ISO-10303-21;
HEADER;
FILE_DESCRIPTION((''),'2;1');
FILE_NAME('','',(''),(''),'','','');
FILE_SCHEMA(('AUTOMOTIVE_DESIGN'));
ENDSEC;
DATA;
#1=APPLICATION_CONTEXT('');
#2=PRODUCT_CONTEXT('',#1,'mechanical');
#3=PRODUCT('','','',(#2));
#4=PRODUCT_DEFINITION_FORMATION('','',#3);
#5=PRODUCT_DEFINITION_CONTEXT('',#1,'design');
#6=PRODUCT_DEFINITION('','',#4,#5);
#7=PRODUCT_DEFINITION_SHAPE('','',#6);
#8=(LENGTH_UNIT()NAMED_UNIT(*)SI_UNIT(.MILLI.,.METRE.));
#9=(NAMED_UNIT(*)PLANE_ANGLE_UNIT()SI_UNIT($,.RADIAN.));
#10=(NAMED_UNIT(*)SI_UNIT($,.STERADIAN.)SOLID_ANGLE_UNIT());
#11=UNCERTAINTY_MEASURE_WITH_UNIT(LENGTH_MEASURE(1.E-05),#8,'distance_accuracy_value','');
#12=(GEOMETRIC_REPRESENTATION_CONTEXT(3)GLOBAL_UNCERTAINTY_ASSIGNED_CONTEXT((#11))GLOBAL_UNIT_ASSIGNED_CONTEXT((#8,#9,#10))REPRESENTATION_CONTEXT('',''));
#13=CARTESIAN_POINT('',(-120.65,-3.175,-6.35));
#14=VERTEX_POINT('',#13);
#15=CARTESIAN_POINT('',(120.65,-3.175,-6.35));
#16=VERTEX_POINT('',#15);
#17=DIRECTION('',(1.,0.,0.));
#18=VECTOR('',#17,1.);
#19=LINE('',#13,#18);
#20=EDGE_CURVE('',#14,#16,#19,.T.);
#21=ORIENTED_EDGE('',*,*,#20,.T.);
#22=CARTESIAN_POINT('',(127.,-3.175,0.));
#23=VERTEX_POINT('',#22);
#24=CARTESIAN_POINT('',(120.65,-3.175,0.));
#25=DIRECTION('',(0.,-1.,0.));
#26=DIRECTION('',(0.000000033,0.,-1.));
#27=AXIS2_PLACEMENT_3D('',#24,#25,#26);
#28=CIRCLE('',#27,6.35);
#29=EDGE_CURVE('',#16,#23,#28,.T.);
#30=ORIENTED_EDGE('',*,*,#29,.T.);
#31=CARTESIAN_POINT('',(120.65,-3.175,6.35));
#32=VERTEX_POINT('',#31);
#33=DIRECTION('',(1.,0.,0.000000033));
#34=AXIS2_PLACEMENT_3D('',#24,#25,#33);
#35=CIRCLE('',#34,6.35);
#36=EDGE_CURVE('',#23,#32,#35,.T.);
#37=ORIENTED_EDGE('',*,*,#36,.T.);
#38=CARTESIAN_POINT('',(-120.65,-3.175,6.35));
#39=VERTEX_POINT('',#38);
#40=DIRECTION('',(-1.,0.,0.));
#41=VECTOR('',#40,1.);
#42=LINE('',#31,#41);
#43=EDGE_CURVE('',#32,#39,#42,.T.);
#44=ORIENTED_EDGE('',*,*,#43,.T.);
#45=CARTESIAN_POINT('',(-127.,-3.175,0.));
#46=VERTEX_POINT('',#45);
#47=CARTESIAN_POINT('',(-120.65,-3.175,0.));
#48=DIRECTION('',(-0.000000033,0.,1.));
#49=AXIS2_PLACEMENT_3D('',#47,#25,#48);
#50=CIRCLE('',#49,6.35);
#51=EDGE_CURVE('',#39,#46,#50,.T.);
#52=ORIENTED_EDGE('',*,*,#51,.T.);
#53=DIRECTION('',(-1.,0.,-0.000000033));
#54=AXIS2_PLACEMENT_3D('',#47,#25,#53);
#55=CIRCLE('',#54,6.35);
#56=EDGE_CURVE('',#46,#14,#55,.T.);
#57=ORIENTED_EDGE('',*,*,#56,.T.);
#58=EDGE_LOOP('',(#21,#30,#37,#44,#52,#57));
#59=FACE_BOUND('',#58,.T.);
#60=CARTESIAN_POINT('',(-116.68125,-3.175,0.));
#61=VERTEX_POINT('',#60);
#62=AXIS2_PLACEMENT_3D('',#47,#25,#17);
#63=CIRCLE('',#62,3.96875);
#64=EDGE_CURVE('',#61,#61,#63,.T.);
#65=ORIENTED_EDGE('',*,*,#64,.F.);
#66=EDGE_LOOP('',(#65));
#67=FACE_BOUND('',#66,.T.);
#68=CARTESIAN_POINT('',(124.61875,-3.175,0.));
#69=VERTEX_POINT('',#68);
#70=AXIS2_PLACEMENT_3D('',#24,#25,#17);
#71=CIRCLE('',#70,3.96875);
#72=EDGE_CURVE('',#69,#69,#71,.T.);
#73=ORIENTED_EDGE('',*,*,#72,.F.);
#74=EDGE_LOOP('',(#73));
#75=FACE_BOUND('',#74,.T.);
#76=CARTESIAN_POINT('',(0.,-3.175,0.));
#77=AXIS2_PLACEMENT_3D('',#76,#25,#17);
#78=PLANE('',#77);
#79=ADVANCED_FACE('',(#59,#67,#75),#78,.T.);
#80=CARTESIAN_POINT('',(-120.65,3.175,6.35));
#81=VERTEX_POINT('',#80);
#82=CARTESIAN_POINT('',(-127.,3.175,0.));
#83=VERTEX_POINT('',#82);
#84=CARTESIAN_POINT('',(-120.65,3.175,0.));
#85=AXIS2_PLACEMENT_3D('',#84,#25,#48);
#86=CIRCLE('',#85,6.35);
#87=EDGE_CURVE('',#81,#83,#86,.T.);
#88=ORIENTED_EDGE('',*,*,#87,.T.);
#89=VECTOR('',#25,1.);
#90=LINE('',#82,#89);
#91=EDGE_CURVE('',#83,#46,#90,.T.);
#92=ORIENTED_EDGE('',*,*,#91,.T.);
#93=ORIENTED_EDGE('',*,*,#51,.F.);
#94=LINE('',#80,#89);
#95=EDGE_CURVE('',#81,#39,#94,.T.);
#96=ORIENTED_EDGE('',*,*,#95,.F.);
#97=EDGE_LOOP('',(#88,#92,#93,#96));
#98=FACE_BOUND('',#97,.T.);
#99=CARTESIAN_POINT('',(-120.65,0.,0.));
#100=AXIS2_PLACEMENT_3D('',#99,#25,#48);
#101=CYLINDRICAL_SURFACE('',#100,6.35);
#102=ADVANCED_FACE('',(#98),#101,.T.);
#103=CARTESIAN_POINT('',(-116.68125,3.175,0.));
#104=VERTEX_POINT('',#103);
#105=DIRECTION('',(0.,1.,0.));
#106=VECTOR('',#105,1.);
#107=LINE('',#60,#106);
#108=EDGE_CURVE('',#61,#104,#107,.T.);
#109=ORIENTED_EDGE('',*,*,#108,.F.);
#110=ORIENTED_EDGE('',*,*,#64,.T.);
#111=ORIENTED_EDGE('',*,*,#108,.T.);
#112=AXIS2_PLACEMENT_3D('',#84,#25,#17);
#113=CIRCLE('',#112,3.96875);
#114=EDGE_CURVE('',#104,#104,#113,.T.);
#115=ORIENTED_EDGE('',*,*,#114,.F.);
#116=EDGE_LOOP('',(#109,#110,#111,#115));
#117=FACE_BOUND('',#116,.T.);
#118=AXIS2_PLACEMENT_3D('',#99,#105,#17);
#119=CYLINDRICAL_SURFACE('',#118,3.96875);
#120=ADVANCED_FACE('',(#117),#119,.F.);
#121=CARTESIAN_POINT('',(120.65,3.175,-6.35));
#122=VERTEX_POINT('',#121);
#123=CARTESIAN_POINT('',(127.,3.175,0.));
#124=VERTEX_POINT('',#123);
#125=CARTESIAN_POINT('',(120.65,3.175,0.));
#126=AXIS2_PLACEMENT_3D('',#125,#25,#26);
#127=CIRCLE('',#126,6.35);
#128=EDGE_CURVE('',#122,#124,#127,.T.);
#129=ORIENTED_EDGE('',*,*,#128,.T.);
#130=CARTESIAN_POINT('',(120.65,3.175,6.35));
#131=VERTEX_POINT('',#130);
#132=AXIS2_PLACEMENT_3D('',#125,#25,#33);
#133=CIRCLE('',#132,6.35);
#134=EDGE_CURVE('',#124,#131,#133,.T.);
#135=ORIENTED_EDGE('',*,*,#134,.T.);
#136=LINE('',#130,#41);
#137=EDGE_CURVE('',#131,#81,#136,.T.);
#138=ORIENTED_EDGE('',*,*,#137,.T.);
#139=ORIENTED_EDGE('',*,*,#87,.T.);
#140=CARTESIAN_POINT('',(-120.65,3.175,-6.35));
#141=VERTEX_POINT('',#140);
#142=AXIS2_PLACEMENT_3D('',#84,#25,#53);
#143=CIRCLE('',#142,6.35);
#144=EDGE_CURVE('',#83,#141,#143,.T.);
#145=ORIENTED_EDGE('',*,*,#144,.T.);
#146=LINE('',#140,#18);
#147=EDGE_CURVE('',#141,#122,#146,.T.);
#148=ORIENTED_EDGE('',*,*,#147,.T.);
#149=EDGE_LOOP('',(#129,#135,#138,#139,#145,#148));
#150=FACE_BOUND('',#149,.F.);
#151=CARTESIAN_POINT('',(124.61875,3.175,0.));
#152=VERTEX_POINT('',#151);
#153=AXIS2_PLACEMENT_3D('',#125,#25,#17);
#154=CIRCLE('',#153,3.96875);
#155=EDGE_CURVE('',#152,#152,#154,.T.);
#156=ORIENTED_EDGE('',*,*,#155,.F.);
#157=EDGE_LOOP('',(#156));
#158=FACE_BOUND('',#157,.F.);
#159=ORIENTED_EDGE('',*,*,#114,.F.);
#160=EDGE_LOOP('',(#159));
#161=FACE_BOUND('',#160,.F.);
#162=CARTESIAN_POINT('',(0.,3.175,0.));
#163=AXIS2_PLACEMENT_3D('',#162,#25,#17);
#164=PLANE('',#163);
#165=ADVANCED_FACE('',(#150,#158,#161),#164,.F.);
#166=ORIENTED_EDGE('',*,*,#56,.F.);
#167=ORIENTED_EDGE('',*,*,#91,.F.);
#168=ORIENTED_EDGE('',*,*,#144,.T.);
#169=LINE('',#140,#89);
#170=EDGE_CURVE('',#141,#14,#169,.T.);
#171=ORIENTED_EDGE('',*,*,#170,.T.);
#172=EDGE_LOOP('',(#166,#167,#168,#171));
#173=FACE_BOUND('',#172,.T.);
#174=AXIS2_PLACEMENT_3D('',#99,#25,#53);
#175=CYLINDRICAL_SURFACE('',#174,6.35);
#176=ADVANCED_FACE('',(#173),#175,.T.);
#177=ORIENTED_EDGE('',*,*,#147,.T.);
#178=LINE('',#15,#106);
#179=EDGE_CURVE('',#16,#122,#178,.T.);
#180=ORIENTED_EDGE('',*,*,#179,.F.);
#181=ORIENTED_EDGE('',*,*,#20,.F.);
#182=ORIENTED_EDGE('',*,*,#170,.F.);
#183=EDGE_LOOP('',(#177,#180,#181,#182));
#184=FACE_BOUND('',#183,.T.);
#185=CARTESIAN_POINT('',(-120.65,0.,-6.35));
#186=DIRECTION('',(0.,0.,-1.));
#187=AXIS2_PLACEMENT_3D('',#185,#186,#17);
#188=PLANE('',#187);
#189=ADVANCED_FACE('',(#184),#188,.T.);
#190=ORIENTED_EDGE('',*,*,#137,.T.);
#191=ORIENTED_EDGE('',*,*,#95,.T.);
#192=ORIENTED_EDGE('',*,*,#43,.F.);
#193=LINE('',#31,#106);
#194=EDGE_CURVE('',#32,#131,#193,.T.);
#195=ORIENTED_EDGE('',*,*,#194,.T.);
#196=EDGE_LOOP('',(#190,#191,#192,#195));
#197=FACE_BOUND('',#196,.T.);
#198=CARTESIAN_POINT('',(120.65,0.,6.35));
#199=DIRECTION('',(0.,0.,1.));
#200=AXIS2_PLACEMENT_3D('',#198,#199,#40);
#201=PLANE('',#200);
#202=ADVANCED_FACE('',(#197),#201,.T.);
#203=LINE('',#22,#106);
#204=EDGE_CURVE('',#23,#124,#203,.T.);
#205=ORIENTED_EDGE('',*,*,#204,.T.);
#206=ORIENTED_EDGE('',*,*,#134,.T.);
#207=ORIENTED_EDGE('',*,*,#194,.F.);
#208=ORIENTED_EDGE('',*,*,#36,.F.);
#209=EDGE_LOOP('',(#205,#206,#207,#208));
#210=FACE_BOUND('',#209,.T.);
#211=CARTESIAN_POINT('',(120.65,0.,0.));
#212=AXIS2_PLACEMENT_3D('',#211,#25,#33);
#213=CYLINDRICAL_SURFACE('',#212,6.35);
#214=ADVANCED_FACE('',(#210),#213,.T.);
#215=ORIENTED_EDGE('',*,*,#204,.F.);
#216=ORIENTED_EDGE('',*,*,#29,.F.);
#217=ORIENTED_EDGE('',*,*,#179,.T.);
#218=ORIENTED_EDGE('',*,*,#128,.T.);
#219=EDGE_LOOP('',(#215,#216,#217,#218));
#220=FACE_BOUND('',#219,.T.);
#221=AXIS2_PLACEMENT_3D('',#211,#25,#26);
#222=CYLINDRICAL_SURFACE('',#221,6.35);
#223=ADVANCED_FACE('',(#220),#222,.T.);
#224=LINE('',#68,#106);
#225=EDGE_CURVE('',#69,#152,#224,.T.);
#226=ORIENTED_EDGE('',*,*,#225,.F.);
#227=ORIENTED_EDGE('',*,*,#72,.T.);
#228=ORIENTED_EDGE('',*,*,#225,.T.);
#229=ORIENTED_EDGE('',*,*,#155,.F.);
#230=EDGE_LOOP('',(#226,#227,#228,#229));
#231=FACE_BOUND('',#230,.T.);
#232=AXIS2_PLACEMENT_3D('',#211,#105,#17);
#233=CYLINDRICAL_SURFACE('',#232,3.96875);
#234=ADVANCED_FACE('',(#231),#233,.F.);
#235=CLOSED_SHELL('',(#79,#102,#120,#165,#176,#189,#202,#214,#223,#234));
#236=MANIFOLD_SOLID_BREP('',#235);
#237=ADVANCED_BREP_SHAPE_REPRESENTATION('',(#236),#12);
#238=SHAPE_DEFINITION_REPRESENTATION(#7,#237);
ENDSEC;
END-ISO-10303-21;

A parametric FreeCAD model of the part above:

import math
import FreeCAD as App
import Part
import Sketcher
from FreeCAD import Vector
Q = App.Units.Quantity

doc = App.newDocument("Part")
body = doc.addObject("PartDesign::Body", "Body")

# Sketch on XZ plane
sketch1 = doc.addObject("Sketcher::SketchObject", "Sketch")
body.addObject(sketch1)
sketch1.AttachmentSupport = (doc.XZ_Plane, [""])
sketch1.MapMode = "FlatFace"
sketch1.addGeometry(Part.LineSegment(Vector(120.7, 6.3, 0), Vector(-120.7, 6.3, 0)), False)
sketch1.addGeometry(Part.ArcOfCircle(Part.Circle(Vector(-120.6, 0, 0), Vector(0, 0, 1), 6.4), math.radians(90), math.radians(180)), False)
sketch1.addGeometry(Part.ArcOfCircle(Part.Circle(Vector(-120.6, 0, 0), Vector(0, 0, 1), 6.4), math.radians(-180), math.radians(-90)), False)
sketch1.addGeometry(Part.LineSegment(Vector(-120.7, -6.3, 0), Vector(120.7, -6.3, 0)), False)
sketch1.addGeometry(Part.ArcOfCircle(Part.Circle(Vector(120.6, 0, 0), Vector(0, 0, 1), 6.4), math.radians(-90), math.radians(0)), False)
sketch1.addGeometry(Part.ArcOfCircle(Part.Circle(Vector(120.6, 0, 0), Vector(0, 0, 1), 6.4), math.radians(0), math.radians(90)), False)
sketch1.addGeometry(Part.Circle(Vector(-120.7, 0, 0), Vector(0, 0, 1), 4), False)
sketch1.addGeometry(Part.Circle(Vector(120.7, 0, 0), Vector(0, 0, 1), 4), False)
sketch1.addConstraint(Sketcher.Constraint("Tangent", 0, 2, 1, 1))
sketch1.addConstraint(Sketcher.Constraint("Tangent", 1, 2, 2, 1))
sketch1.addConstraint(Sketcher.Constraint("Tangent", 2, 2, 3, 1))
sketch1.addConstraint(Sketcher.Constraint("Tangent", 3, 2, 4, 1))
sketch1.addConstraint(Sketcher.Constraint("Tangent", 4, 2, 5, 1))
sketch1.addConstraint(Sketcher.Constraint("Tangent", 5, 2, 0, 1))
sketch1.addConstraint(Sketcher.Constraint("Horizontal", 0))
sketch1.addConstraint(Sketcher.Constraint("Horizontal", 3))
sketch1.addConstraint(Sketcher.Constraint("Coincident", 6, 3, 1, 3))
sketch1.addConstraint(Sketcher.Constraint("Coincident", 7, 3, 4, 3))
sketch1.addConstraint(Sketcher.Constraint("Equal", 1, 2))
sketch1.addConstraint(Sketcher.Constraint("Equal", 2, 4))
sketch1.addConstraint(Sketcher.Constraint("Equal", 6, 7))
sketch1.addConstraint(Sketcher.Constraint("Symmetric", 1, 3, 4, 3, -1, 1))
sketch1.addConstraint(Sketcher.Constraint("PointOnObject", 1, 2, -1))
sketch1.addConstraint(Sketcher.Constraint("PointOnObject", 4, 2, -1))
sketch1.addConstraint(Sketcher.Constraint("Radius", 1, Q("0.25 in")))
sketch1.addConstraint(Sketcher.Constraint("Diameter", 6, Q("0.3125 in")))
sketch1.addConstraint(Sketcher.Constraint("DistanceX", 0, 2, 0, 1, Q("9.5 in")))
pad1 = doc.addObject("PartDesign::Pad", "Pad")
body.addObject(pad1)
pad1.Profile = sketch1
pad1.Length = Q("0.25 in")
pad1.Midplane = True

doc.recompute()
